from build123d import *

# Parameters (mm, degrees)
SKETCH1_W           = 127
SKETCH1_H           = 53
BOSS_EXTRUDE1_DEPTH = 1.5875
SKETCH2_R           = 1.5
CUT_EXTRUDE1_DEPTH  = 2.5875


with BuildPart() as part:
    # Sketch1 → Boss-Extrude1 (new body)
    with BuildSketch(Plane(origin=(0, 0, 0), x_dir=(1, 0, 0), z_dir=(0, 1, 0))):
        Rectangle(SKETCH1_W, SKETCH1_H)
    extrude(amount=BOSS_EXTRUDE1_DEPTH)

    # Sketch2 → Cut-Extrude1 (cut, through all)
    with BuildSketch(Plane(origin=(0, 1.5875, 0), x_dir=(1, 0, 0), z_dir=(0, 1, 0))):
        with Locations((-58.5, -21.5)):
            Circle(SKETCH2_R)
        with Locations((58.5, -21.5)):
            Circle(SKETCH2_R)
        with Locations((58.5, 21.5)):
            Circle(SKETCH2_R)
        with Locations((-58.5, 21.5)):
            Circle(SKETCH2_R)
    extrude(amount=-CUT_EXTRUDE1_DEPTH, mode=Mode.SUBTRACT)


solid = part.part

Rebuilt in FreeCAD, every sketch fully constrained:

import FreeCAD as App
import Part
import Sketcher

V = App.Vector
Q = App.Units.Quantity

doc = App.newDocument("Part")
body = doc.addObject("PartDesign::Body", "Body")

# Sketch on XZ plane
sketch1 = body.newObject("Sketcher::SketchObject", "Sketch")
sketch1.AttachmentSupport = (doc.getObject("XZ_Plane"), [""])
sketch1.MapMode = "FlatFace"
sketch1.addGeometry([
    Part.LineSegment(V(-63.5, -26.5, 0), V(-63.5, 26.5, 0)),
    Part.LineSegment(V(-63.5, 26.5, 0), V(63.5, 26.5, 0)),
    Part.LineSegment(V(63.5, 26.5, 0), V(63.5, -26.5, 0)),
    Part.LineSegment(V(63.5, -26.5, 0), V(-63.5, -26.5, 0)),
], False)
sketch1.addConstraint([
    Sketcher.Constraint("Coincident", 0, 2, 1, 1),
    Sketcher.Constraint("Coincident", 1, 2, 2, 1),
    Sketcher.Constraint("Coincident", 2, 2, 3, 1),
    Sketcher.Constraint("Coincident", 3, 2, 0, 1),
    Sketcher.Constraint("Vertical", 0),
    Sketcher.Constraint("Horizontal", 1),
    Sketcher.Constraint("Vertical", 2),
    Sketcher.Constraint("Horizontal", 3),
    Sketcher.Constraint("Symmetric", 0, 2, 2, 2, -1, 1),
    Sketcher.Constraint("DistanceX", 1, 1, 1, 2, Q("127 mm")),
    Sketcher.Constraint("DistanceY", 0, 1, 0, 2, Q("53 mm")),
])
pad1 = body.newObject("PartDesign::Pad", "Pad")
pad1.Profile = sketch1
pad1.Length = 1.5875
pad1.Reversed = True

# Sketch on XZ plane
sketch2 = body.newObject("Sketcher::SketchObject", "Sketch001")
sketch2.AttachmentSupport = (doc.getObject("XZ_Plane"), [""])
sketch2.MapMode = "FlatFace"
sketch2.AttachmentOffset = App.Placement(V(0, 0, -1.5875), App.Rotation())
sketch2.addGeometry([
    Part.Circle(V(-58.5, 21.5, 0), V(0, 0, 1), 1.5),
    Part.Circle(V(58.5, 21.5, 0), V(0, 0, 1), 1.5),
    Part.Circle(V(58.5, -21.5, 0), V(0, 0, 1), 1.5),
    Part.Circle(V(-58.5, -21.5, 0), V(0, 0, 1), 1.5),
], False)
sketch2.addConstraint([
    Sketcher.Constraint("Equal", 0, 1),
    Sketcher.Constraint("Equal", 1, 2),
    Sketcher.Constraint("Equal", 2, 3),
    Sketcher.Constraint("Symmetric", 0, 3, 2, 3, -1, 1),
    Sketcher.Constraint("Symmetric", 1, 3, 3, 3, -1, 1),
    Sketcher.Constraint("Symmetric", 0, 3, 1, 3, -2),
    Sketcher.Constraint("Diameter", 0, Q("3 mm")),
    Sketcher.Constraint("DistanceX", 0, 3, 1, 3, Q("117 mm")),
    Sketcher.Constraint("DistanceY", 2, 3, 1, 3, Q("43 mm")),
])
pocket1 = body.newObject("PartDesign::Pocket", "Pocket")
pocket1.Profile = sketch2
pocket1.Type = "ThroughAll"
pocket1.Reversed = True

doc.recompute()
